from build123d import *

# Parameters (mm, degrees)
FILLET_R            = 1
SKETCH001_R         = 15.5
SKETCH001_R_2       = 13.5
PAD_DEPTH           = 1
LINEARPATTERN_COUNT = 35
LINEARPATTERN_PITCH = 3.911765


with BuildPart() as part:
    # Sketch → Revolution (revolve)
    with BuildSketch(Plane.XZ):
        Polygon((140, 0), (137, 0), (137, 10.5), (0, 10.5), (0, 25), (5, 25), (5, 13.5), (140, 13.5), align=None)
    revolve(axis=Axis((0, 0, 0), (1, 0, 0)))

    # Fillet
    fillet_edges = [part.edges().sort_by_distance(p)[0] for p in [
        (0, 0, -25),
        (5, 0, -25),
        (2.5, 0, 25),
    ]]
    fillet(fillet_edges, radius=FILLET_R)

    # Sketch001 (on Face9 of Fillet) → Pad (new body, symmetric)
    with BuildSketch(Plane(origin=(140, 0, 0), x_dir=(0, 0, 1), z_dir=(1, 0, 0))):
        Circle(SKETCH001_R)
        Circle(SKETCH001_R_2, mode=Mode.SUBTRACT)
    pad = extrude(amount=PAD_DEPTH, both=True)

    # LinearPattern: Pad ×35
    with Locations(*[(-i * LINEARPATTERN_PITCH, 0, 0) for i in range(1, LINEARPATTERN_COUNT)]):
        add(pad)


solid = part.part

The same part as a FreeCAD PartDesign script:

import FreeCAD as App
import Part
import Sketcher
Q = App.Units.Quantity


def edges_at(feature, points):
    """Names of the edges that pass closest to the given points."""
    edges = feature.Shape.Edges
    near = lambda p: min(range(len(edges)), key=lambda i: edges[i].distToShape(Part.Vertex(*p))[0])
    return sorted({f"Edge{near(p) + 1}" for p in points})


def add_polygon(sketch, points):
    """Adds a closed chain of lines whose ends are joined by coincident constraints."""
    first, n = sketch.GeometryCount, len(points)
    for a, b in zip(points, points[1:] + points[:1]):
        sketch.addGeometry(Part.LineSegment(App.Vector(*a, 0), App.Vector(*b, 0)), False)
    for i in range(n):
        sketch.addConstraint(Sketcher.Constraint("Coincident", first + i, 2, first + (i + 1) % n, 1))

doc = App.newDocument("Part")
params = doc.addObject("Spreadsheet::Sheet", "Params")
for row, (alias, value) in enumerate([
    ("sketch1_width", "3 mm"),
    ("sketch1_width2", "135 mm"),
    ("sketch1_width3", "5 mm"),
    ("sketch1_height", "13.5 mm"),
    ("sketch1_height2", "11.5 mm"),
    ("revolution_angle", "360 deg"),
    ("fillet_radius", "1 mm"),
    ("sketch2_diameter", "31 mm"),
    ("sketch2_diameter2", "27 mm"),
    ("pad1_length", "2 mm"),
    ("linearpattern_pitch", "3.911765 mm"),
], start=1):
    params.set(f"A{row}", alias)
    params.set(f"B{row}", "=" + value)
    params.setAlias(f"B{row}", alias)

body = doc.addObject("PartDesign::Body", "Body")

sketch1 = body.newObject("Sketcher::SketchObject", "Sketch")
sketch1.AttachmentSupport = (doc.getObject("XZ_Plane"), [""])
sketch1.MapMode = "FlatFace"
add_polygon(sketch1, [(137, 0), (140, 0), (140, 13.5), (5, 13.5), (5, 25), (0, 25), (0, 10.5), (137, 10.5)])
sketch1.addConstraint(Sketcher.Constraint("Horizontal", 0))
sketch1.addConstraint(Sketcher.Constraint("Vertical", 1))
sketch1.addConstraint(Sketcher.Constraint("Horizontal", 2))
sketch1.addConstraint(Sketcher.Constraint("Vertical", 3))
sketch1.addConstraint(Sketcher.Constraint("Horizontal", 4))
sketch1.addConstraint(Sketcher.Constraint("Vertical", 5))
sketch1.addConstraint(Sketcher.Constraint("Horizontal", 6))
sketch1.addConstraint(Sketcher.Constraint("Vertical", 7))
sketch1.addConstraint(Sketcher.Constraint("PointOnObject", 0, 2, -1))
sketch1.addConstraint(Sketcher.Constraint("PointOnObject", 4, 2, -2))
sketch1.addConstraint(Sketcher.Constraint("DistanceX", 0, 1, 0, 2, Q("3 mm")))
sketch1.addConstraint(Sketcher.Constraint("DistanceX", 2, 2, 2, 1, Q("135 mm")))
sketch1.addConstraint(Sketcher.Constraint("DistanceX", 4, 2, 4, 1, Q("5 mm")))
sketch1.addConstraint(Sketcher.Constraint("DistanceY", 1, 1, 1, 2, Q("13.5 mm")))
sketch1.addConstraint(Sketcher.Constraint("DistanceY", 3, 1, 3, 2, Q("11.5 mm")))
sketch1.addConstraint(Sketcher.Constraint("DistanceY", 5, 2, 5, 1, Q("14.5 mm")))
sketch1.setExpression("Constraints[18]", "Params.sketch1_width")
sketch1.setExpression("Constraints[19]", "Params.sketch1_width2")
sketch1.setExpression("Constraints[20]", "Params.sketch1_width3")
sketch1.setExpression("Constraints[21]", "Params.sketch1_height")
sketch1.setExpression("Constraints[22]", "Params.sketch1_height2")
revolution = body.newObject("PartDesign::Revolution", "Revolution")
revolution.Profile = sketch1
revolution.ReferenceAxis = (sketch1, ["H_Axis"])
revolution.setExpression("Angle", "Params.revolution_angle")
doc.recompute()

fillet = body.newObject("PartDesign::Fillet", "Fillet")
fillet.Base = (revolution, edges_at(revolution, [(0, 0, -25), (5, 0, -25), (2.5, 0, 25)]))
fillet.setExpression("Radius", "Params.fillet_radius")

sketch2 = body.newObject("Sketcher::SketchObject", "Sketch001")
sketch2.AttachmentSupport = (doc.getObject("YZ_Plane"), [""])
sketch2.MapMode = "FlatFace"
sketch2.AttachmentOffset = App.Placement(App.Vector(0, 0, 140), App.Rotation())
sketch2.addGeometry(Part.Circle(App.Vector(0, 0, 0), App.Vector(0, 0, 1), 16), False)
sketch2.addGeometry(Part.Circle(App.Vector(0, 0, 0), App.Vector(0, 0, 1), 14), False)
sketch2.addConstraint(Sketcher.Constraint("Coincident", 0, 3, -1, 1))
sketch2.addConstraint(Sketcher.Constraint("Coincident", 1, 3, -1, 1))
sketch2.addConstraint(Sketcher.Constraint("Diameter", 0, Q("31 mm")))
sketch2.addConstraint(Sketcher.Constraint("Diameter", 1, Q("27 mm")))
sketch2.setExpression("Constraints[2]", "Params.sketch2_diameter")
sketch2.setExpression("Constraints[3]", "Params.sketch2_diameter2")
pad1 = body.newObject("PartDesign::Pad", "Pad")
pad1.Profile = sketch2
pad1.setExpression("Length", "Params.pad1_length")
pad1.Midplane = True
doc.recompute()

linearpattern = body.newObject("PartDesign::LinearPattern", "LinearPattern")
linearpattern.Originals = [pad1]
linearpattern.Direction = (doc.getObject("X_Axis"), [""])
linearpattern.Mode = "offset"
linearpattern.setExpression("Offset", "Params.linearpattern_pitch")
linearpattern.Occurrences = 35
linearpattern.Reversed = True
body.Tip = linearpattern

doc.recompute()
